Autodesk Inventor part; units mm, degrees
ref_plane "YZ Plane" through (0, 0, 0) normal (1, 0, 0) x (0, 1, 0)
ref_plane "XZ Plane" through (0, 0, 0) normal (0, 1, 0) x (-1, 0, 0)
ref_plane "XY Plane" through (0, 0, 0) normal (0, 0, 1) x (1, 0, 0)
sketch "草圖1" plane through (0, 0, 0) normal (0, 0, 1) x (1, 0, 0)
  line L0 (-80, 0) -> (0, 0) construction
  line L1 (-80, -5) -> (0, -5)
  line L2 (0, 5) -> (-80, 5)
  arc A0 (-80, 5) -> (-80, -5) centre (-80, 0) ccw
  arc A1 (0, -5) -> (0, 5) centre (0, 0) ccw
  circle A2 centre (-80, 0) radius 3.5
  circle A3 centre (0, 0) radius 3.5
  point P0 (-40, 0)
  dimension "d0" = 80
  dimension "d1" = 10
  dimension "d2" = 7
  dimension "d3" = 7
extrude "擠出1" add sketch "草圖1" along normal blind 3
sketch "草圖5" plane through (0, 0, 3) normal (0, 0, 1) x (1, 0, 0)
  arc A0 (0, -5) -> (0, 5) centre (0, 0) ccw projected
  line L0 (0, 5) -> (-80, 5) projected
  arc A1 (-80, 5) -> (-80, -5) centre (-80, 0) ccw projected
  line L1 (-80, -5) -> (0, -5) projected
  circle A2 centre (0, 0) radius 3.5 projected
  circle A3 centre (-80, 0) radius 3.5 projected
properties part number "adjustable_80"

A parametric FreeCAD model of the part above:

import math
import FreeCAD as App
import Part
import Sketcher

V = App.Vector

doc = App.newDocument("Part")
body = doc.addObject("PartDesign::Body", "Body")

sketch1 = body.newObject("Sketcher::SketchObject", "Sketch")
sketch1.AttachmentSupport = (doc.getObject("XY_Plane"), [""])
sketch1.MapMode = "FlatFace"
sketch1.addGeometry([
    Part.ArcOfCircle(Part.Circle(V(-80, 0, 0), V(0, 0, 1), 5), math.radians(90), math.radians(270)),
    Part.LineSegment(V(-80, -5, 0), V(0, -5, 0)),
    Part.ArcOfCircle(Part.Circle(V(0, 0, 0), V(0, 0, 1), 5), math.radians(-90), math.radians(90)),
    Part.LineSegment(V(0, 5, 0), V(-80, 5, 0)),
    Part.Circle(V(-80, 0, 0), V(0, 0, 1), 3.5),
    Part.Circle(V(0, 0, 0), V(0, 0, 1), 3.5),
], False)
sketch1.addConstraint([
    Sketcher.Constraint("Tangent", 0, 2, 1, 1),
    Sketcher.Constraint("Tangent", 1, 2, 2, 1),
    Sketcher.Constraint("Tangent", 2, 2, 3, 1),
    Sketcher.Constraint("Tangent", 3, 2, 0, 1),
    Sketcher.Constraint("Horizontal", 1),
    Sketcher.Constraint("Horizontal", 3),
    Sketcher.Constraint("Coincident", 2, 3, -1, 1),
    Sketcher.Constraint("Coincident", 5, 3, -1, 1),
    Sketcher.Constraint("Coincident", 4, 3, 0, 3),
    Sketcher.Constraint("Equal", 4, 5),
    Sketcher.Constraint("Diameter", 4, 7.0),
    Sketcher.Constraint("Radius", 0, 5.0),
    Sketcher.Constraint("DistanceX", 1, 1, 1, 2, 80.0),
])
pad1 = body.newObject("PartDesign::Pad", "Pad")
pad1.Profile = sketch1
pad1.Length = 3

doc.recompute()
